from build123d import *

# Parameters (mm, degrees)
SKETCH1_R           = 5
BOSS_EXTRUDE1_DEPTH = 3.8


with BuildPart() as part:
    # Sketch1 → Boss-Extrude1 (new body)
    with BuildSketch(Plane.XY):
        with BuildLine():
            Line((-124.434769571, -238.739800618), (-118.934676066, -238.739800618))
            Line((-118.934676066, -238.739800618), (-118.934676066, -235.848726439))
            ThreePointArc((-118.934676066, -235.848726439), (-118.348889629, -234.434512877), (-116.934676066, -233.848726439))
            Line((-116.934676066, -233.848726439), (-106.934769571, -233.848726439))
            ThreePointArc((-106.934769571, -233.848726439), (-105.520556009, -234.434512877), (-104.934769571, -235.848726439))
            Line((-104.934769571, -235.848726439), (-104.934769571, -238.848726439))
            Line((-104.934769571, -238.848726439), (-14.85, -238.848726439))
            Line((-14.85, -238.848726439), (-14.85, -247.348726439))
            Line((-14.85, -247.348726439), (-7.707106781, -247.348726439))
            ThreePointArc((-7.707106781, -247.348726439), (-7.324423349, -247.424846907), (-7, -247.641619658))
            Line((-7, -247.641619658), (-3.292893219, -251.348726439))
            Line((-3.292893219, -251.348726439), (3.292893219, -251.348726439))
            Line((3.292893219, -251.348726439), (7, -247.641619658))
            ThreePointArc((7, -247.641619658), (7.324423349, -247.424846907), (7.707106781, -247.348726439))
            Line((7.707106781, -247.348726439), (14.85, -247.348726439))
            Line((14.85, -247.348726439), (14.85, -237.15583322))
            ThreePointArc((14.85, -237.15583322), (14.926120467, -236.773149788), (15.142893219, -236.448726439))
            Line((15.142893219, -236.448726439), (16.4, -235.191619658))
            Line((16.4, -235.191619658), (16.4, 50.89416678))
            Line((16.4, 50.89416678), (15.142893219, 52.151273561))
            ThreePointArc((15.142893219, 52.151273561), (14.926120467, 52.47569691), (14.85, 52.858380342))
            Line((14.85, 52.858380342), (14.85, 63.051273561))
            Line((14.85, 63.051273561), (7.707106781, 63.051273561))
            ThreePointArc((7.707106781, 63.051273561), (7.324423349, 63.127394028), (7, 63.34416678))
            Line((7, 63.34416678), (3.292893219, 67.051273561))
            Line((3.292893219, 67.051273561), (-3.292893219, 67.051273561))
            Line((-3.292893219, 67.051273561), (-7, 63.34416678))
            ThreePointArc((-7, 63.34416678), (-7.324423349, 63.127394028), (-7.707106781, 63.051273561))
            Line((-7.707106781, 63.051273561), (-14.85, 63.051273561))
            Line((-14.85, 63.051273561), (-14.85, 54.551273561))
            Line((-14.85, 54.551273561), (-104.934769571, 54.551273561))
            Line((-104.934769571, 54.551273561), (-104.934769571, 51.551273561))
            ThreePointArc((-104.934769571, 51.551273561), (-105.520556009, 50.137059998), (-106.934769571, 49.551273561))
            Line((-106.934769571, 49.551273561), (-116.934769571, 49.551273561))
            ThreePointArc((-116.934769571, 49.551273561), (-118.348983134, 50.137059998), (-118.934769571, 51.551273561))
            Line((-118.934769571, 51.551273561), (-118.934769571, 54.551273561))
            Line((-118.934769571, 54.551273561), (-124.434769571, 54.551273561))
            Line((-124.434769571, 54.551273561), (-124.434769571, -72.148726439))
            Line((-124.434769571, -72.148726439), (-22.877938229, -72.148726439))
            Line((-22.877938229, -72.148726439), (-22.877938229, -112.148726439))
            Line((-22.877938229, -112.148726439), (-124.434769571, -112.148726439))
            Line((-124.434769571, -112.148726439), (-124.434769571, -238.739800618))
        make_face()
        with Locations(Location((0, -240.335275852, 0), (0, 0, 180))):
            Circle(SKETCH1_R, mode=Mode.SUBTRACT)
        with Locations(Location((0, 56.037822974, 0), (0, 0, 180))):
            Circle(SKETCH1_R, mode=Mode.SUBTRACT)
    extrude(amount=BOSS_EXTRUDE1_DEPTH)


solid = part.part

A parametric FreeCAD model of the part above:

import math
import FreeCAD as App
import Part
import Sketcher
from FreeCAD import Vector

doc = App.newDocument("Part")
params = doc.addObject("Spreadsheet::Sheet", "Params")
for row, (alias, value) in enumerate([
    ("sketch1_diameter", "10 mm"),
    ("sketch1_radius", "2 mm"),
    ("sketch1_radius2", "1 mm"),
    ("sketch1_width", "10 mm"),
    ("sketch1_height", "3 mm"),
    ("pad1_length", "3.8 mm"),
], start=1):
    params.set(f"A{row}", alias)
    params.set(f"B{row}", "=" + value)
    params.setAlias(f"B{row}", alias)

body = doc.addObject("PartDesign::Body", "Body")

sketch1 = doc.addObject("Sketcher::SketchObject", "Sketch")
body.addObject(sketch1)
sketch1.AttachmentSupport = (doc.XY_Plane, [""])
sketch1.MapMode = "FlatFace"
sketch1.addGeometry(Part.LineSegment(Vector(-124.4, -238.7, 0), Vector(-118.9, -238.7, 0)), False)
sketch1.addGeometry(Part.LineSegment(Vector(-118.9, -238.7, 0), Vector(-118.9, -235.8, 0)), False)
sketch1.addGeometry(Part.ArcOfCircle(Part.Circle(Vector(-116.9, -235.8, 0), Vector(0, 0, 1), 2), math.radians(90), math.radians(180)), False)
sketch1.addGeometry(Part.LineSegment(Vector(-116.9, -233.8, 0), Vector(-106.9, -233.8, 0)), False)
sketch1.addGeometry(Part.ArcOfCircle(Part.Circle(Vector(-106.9, -235.8, 0), Vector(0, 0, 1), 2), math.radians(0), math.radians(90)), False)
sketch1.addGeometry(Part.LineSegment(Vector(-104.9, -235.8, 0), Vector(-104.9, -238.8, 0)), False)
sketch1.addGeometry(Part.LineSegment(Vector(-104.9, -238.8, 0), Vector(-14.8, -238.8, 0)), False)
sketch1.addGeometry(Part.LineSegment(Vector(-14.8, -238.8, 0), Vector(-14.8, -247.3, 0)), False)
sketch1.addGeometry(Part.LineSegment(Vector(-14.8, -247.3, 0), Vector(-7.7, -247.3, 0)), False)
sketch1.addGeometry(Part.ArcOfCircle(Part.Circle(Vector(-7.7, -248.3, 0), Vector(0, 0, 1), 1), math.radians(45), math.radians(90)), False)
sketch1.addGeometry(Part.LineSegment(Vector(-7, -247.6, 0), Vector(-3.3, -251.3, 0)), False)
sketch1.addGeometry(Part.LineSegment(Vector(-3.3, -251.3, 0), Vector(3.3, -251.3, 0)), False)
sketch1.addGeometry(Part.LineSegment(Vector(3.3, -251.3, 0), Vector(7, -247.6, 0)), False)
sketch1.addGeometry(Part.ArcOfCircle(Part.Circle(Vector(7.7, -248.3, 0), Vector(0, 0, 1), 1), math.radians(90), math.radians(135)), False)
sketch1.addGeometry(Part.LineSegment(Vector(7.7, -247.3, 0), Vector(14.8, -247.3, 0)), False)
sketch1.addGeometry(Part.LineSegment(Vector(14.8, -247.3, 0), Vector(14.8, -237.2, 0)), False)
sketch1.addGeometry(Part.ArcOfCircle(Part.Circle(Vector(15.8, -237.2, 0), Vector(0, 0, 1), 1), math.radians(135), math.radians(180)), False)
sketch1.addGeometry(Part.LineSegment(Vector(15.1, -236.4, 0), Vector(16.4, -235.2, 0)), False)
sketch1.addGeometry(Part.LineSegment(Vector(16.4, -235.2, 0), Vector(16.4, 50.9, 0)), False)
sketch1.addGeometry(Part.LineSegment(Vector(16.4, 50.9, 0), Vector(15.1, 52.2, 0)), False)
sketch1.addGeometry(Part.ArcOfCircle(Part.Circle(Vector(15.8, 52.9, 0), Vector(0, 0, 1), 1), math.radians(180), math.radians(225)), False)
sketch1.addGeometry(Part.LineSegment(Vector(14.8, 52.9, 0), Vector(14.8, 63.1, 0)), False)
sketch1.addGeometry(Part.LineSegment(Vector(14.8, 63.1, 0), Vector(7.7, 63.1, 0)), False)
sketch1.addGeometry(Part.ArcOfCircle(Part.Circle(Vector(7.7, 64.1, 0), Vector(0, 0, 1), 1), math.radians(-135), math.radians(-90)), False)
sketch1.addGeometry(Part.LineSegment(Vector(7, 63.3, 0), Vector(3.3, 67.1, 0)), False)
sketch1.addGeometry(Part.LineSegment(Vector(3.3, 67.1, 0), Vector(-3.3, 67.1, 0)), False)
sketch1.addGeometry(Part.LineSegment(Vector(-3.3, 67.1, 0), Vector(-7, 63.3, 0)), False)
sketch1.addGeometry(Part.ArcOfCircle(Part.Circle(Vector(-7.7, 64.1, 0), Vector(0, 0, 1), 1), math.radians(-90), math.radians(-45)), False)
sketch1.addGeometry(Part.LineSegment(Vector(-7.7, 63.1, 0), Vector(-14.8, 63.1, 0)), False)
sketch1.addGeometry(Part.LineSegment(Vector(-14.8, 63.1, 0), Vector(-14.8, 54.6, 0)), False)
sketch1.addGeometry(Part.LineSegment(Vector(-14.8, 54.6, 0), Vector(-104.9, 54.6, 0)), False)
sketch1.addGeometry(Part.LineSegment(Vector(-104.9, 54.6, 0), Vector(-104.9, 51.6, 0)), False)
sketch1.addGeometry(Part.ArcOfCircle(Part.Circle(Vector(-106.9, 51.6, 0), Vector(0, 0, 1), 2), math.radians(-90), math.radians(0)), False)
sketch1.addGeometry(Part.LineSegment(Vector(-106.9, 49.6, 0), Vector(-116.9, 49.6, 0)), False)
sketch1.addGeometry(Part.ArcOfCircle(Part.Circle(Vector(-116.9, 51.6, 0), Vector(0, 0, 1), 2), math.radians(180), math.radians(270)), False)
sketch1.addGeometry(Part.LineSegment(Vector(-118.9, 51.6, 0), Vector(-118.9, 54.6, 0)), False)
sketch1.addGeometry(Part.LineSegment(Vector(-118.9, 54.6, 0), Vector(-124.4, 54.6, 0)), False)
sketch1.addGeometry(Part.LineSegment(Vector(-124.4, 54.6, 0), Vector(-124.4, -72.1, 0)), False)
sketch1.addGeometry(Part.LineSegment(Vector(-124.4, -72.1, 0), Vector(-22.9, -72.1, 0)), False)
sketch1.addGeometry(Part.LineSegment(Vector(-22.9, -72.1, 0), Vector(-22.9, -112.1, 0)), False)
sketch1.addGeometry(Part.LineSegment(Vector(-22.9, -112.1, 0), Vector(-124.4, -112.1, 0)), False)
sketch1.addGeometry(Part.LineSegment(Vector(-124.4, -112.1, 0), Vector(-124.4, -238.7, 0)), False)
sketch1.addGeometry(Part.Circle(Vector(0, -240.3, 0), Vector(0, 0, 1), 5), False)
sketch1.addGeometry(Part.Circle(Vector(0, 56, 0), Vector(0, 0, 1), 5), False)
sketch1.addConstraint(Sketcher.Constraint("Coincident", 0, 2, 1, 1))
sketch1.addConstraint(Sketcher.Constraint("Tangent", 1, 2, 2, 2))
sketch1.addConstraint(Sketcher.Constraint("Tangent", 2, 1, 3, 1))
sketch1.addConstraint(Sketcher.Constraint("Tangent", 3, 2, 4, 2))
sketch1.addConstraint(Sketcher.Constraint("Tangent", 4, 1, 5, 1))
sketch1.addConstraint(Sketcher.Constraint("Coincident", 5, 2, 6, 1))
sketch1.addConstraint(Sketcher.Constraint("Coincident", 6, 2, 7, 1))
sketch1.addConstraint(Sketcher.Constraint("Coincident", 7, 2, 8, 1))
sketch1.addConstraint(Sketcher.Constraint("Tangent", 8, 2, 9, 2))
sketch1.addConstraint(Sketcher.Constraint("Tangent", 9, 1, 10, 1))
sketch1.addConstraint(Sketcher.Constraint("Coincident", 10, 2, 11, 1))
sketch1.addConstraint(Sketcher.Constraint("Coincident", 11, 2, 12, 1))
sketch1.addConstraint(Sketcher.Constraint("Tangent", 12, 2, 13, 2))
sketch1.addConstraint(Sketcher.Constraint("Tangent", 13, 1, 14, 1))
sketch1.addConstraint(Sketcher.Constraint("Coincident", 14, 2, 15, 1))
sketch1.addConstraint(Sketcher.Constraint("Tangent", 15, 2, 16, 2))
sketch1.addConstraint(Sketcher.Constraint("Tangent", 16, 1, 17, 1))
sketch1.addConstraint(Sketcher.Constraint("Coincident", 17, 2, 18, 1))
sketch1.addConstraint(Sketcher.Constraint("Coincident", 18, 2, 19, 1))
sketch1.addConstraint(Sketcher.Constraint("Tangent", 19, 2, 20, 2))
sketch1.addConstraint(Sketcher.Constraint("Tangent", 20, 1, 21, 1))
sketch1.addConstraint(Sketcher.Constraint("Coincident", 21, 2, 22, 1))
sketch1.addConstraint(Sketcher.Constraint("Tangent", 22, 2, 23, 2))
sketch1.addConstraint(Sketcher.Constraint("Tangent", 23, 1, 24, 1))
sketch1.addConstraint(Sketcher.Constraint("Coincident", 24, 2, 25, 1))
sketch1.addConstraint(Sketcher.Constraint("Coincident", 25, 2, 26, 1))
sketch1.addConstraint(Sketcher.Constraint("Tangent", 26, 2, 27, 2))
sketch1.addConstraint(Sketcher.Constraint("Tangent", 27, 1, 28, 1))
sketch1.addConstraint(Sketcher.Constraint("Coincident", 28, 2, 29, 1))
sketch1.addConstraint(Sketcher.Constraint("Coincident", 29, 2, 30, 1))
sketch1.addConstraint(Sketcher.Constraint("Coincident", 30, 2, 31, 1))
sketch1.addConstraint(Sketcher.Constraint("Tangent", 31, 2, 32, 2))
sketch1.addConstraint(Sketcher.Constraint("Tangent", 32, 1, 33, 1))
sketch1.addConstraint(Sketcher.Constraint("Tangent", 33, 2, 34, 2))
sketch1.addConstraint(Sketcher.Constraint("Tangent", 34, 1, 35, 1))
sketch1.addConstraint(Sketcher.Constraint("Coincident", 35, 2, 36, 1))
sketch1.addConstraint(Sketcher.Constraint("Coincident", 36, 2, 37, 1))
sketch1.addConstraint(Sketcher.Constraint("Coincident", 37, 2, 38, 1))
sketch1.addConstraint(Sketcher.Constraint("Coincident", 38, 2, 39, 1))
sketch1.addConstraint(Sketcher.Constraint("Coincident", 39, 2, 40, 1))
sketch1.addConstraint(Sketcher.Constraint("Coincident", 40, 2, 41, 1))
sketch1.addConstraint(Sketcher.Constraint("Coincident", 41, 2, 0, 1))
sketch1.addConstraint(Sketcher.Constraint("Horizontal", 0))
sketch1.addConstraint(Sketcher.Constraint("Vertical", 1))
sketch1.addConstraint(Sketcher.Constraint("Horizontal", 3))
sketch1.addConstraint(Sketcher.Constraint("Vertical", 5))
sketch1.addConstraint(Sketcher.Constraint("Horizontal", 6))
sketch1.addConstraint(Sketcher.Constraint("Vertical", 7))
sketch1.addConstraint(Sketcher.Constraint("Horizontal", 8))
sketch1.addConstraint(Sketcher.Constraint("Horizontal", 11))
sketch1.addConstraint(Sketcher.Constraint("Horizontal", 14))
sketch1.addConstraint(Sketcher.Constraint("Vertical", 15))
sketch1.addConstraint(Sketcher.Constraint("Vertical", 18))
sketch1.addConstraint(Sketcher.Constraint("Vertical", 21))
sketch1.addConstraint(Sketcher.Constraint("Horizontal", 22))
sketch1.addConstraint(Sketcher.Constraint("Horizontal", 25))
sketch1.addConstraint(Sketcher.Constraint("Horizontal", 28))
sketch1.addConstraint(Sketcher.Constraint("Vertical", 29))
sketch1.addConstraint(Sketcher.Constraint("Horizontal", 30))
sketch1.addConstraint(Sketcher.Constraint("Vertical", 31))
sketch1.addConstraint(Sketcher.Constraint("Horizontal", 33))
sketch1.addConstraint(Sketcher.Constraint("Vertical", 35))
sketch1.addConstraint(Sketcher.Constraint("Horizontal", 36))
sketch1.addConstraint(Sketcher.Constraint("Vertical", 37))
sketch1.addConstraint(Sketcher.Constraint("Horizontal", 38))
sketch1.addConstraint(Sketcher.Constraint("Vertical", 39))
sketch1.addConstraint(Sketcher.Constraint("Horizontal", 40))
sketch1.addConstraint(Sketcher.Constraint("Vertical", 41))
sketch1.addConstraint(Sketcher.Constraint("Equal", 2, 4))
sketch1.addConstraint(Sketcher.Constraint("Equal", 9, 13))
sketch1.addConstraint(Sketcher.Constraint("Equal", 13, 16))
sketch1.addConstraint(Sketcher.Constraint("Equal", 16, 20))
sketch1.addConstraint(Sketcher.Constraint("Equal", 20, 23))
sketch1.addConstraint(Sketcher.Constraint("Equal", 23, 27))
sketch1.addConstraint(Sketcher.Constraint("Equal", 4, 32))
sketch1.addConstraint(Sketcher.Constraint("Equal", 32, 34))
sketch1.addConstraint(Sketcher.Constraint("Equal", 42, 43))
sketch1.addConstraint(Sketcher.Constraint("Symmetric", 9, 3, 13, 3, -2))
sketch1.addConstraint(Sketcher.Constraint("Symmetric", 23, 3, 27, 3, -2))
sketch1.addConstraint(Sketcher.Constraint("PointOnObject", 42, 3, -2))
sketch1.addConstraint(Sketcher.Constraint("PointOnObject", 43, 3, -2))
sketch1.addConstraint(Sketcher.Constraint("Perpendicular", 10, 12))
sketch1.addConstraint(Sketcher.Constraint("Parallel", 12, 17))
sketch1.addConstraint(Sketcher.Constraint("Perpendicular", 17, 19))
sketch1.addConstraint(Sketcher.Constraint("Parallel", 19, 24))
sketch1.addConstraint(Sketcher.Constraint("Perpendicular", 24, 26))
sketch1.addConstraint(Sketcher.Constraint("Horizontal", 9, 1, 12, 2))
sketch1.addConstraint(Sketcher.Constraint("Horizontal", 30, 2, 35, 2))
sketch1.addConstraint(Sketcher.Constraint("Vertical", 16, 3, 20, 3))
sketch1.addConstraint(Sketcher.Constraint("Vertical", 13, 3, 23, 3))
sketch1.addConstraint(Sketcher.Constraint("Vertical", 4, 3, 32, 3))
sketch1.addConstraint(Sketcher.Constraint("Vertical", 11, 2, 24, 2))
sketch1.addConstraint(Sketcher.Constraint("Vertical", 7, 2, 28, 2))
sketch1.addConstraint(Sketcher.Constraint("Vertical", 37, 2, 40, 2))
sketch1.addConstraint(Sketcher.Constraint("Equal", 8, 14))
sketch1.addConstraint(Sketcher.Constraint("Equal", 15, 21))
sketch1.addConstraint(Sketcher.Constraint("Equal", 7, 29))
sketch1.addConstraint(Sketcher.Constraint("Equal", 5, 31))
sketch1.addConstraint(Sketcher.Constraint("Diameter", 42, 10.0))
sketch1.addConstraint(Sketcher.Constraint("Radius", 2, 2.0))
sketch1.addConstraint(Sketcher.Constraint("Radius", 9, 1.0))
sketch1.addConstraint(Sketcher.Constraint("DistanceX", 33, 2, 33, 1, 10.0))
sketch1.addConstraint(Sketcher.Constraint("DistanceY", 5, 2, 5, 1, 3.0))
sketch1.addConstraint(Sketcher.Constraint("DistanceY", 39, 2, 39, 1, 40.0))
sketch1.addConstraint(Sketcher.Constraint("DistanceX", 36, 2, 36, 1, 5.5))
sketch1.addConstraint(Sketcher.Constraint("DistanceY", 7, 2, 7, 1, 8.5))
sketch1.addConstraint(Sketcher.Constraint("DistanceY", 37, 2, 37, 1, 126.7))
sketch1.addConstraint(Sketcher.Constraint("DistanceX", 9, 1, -1, 1, 7.0))
sketch1.addConstraint(Sketcher.Constraint("DistanceY", 10, 2, 9, 3, 3.0))
sketch1.addConstraint(Sketcher.Constraint("DistanceX", -1, 1, 17, 2, 16.4))
sketch1.addConstraint(Sketcher.Constraint("DistanceY", 13, 3, 23, 3, 312.4))
sketch1.addConstraint(Sketcher.Constraint("DistanceX", 6, 2, 16, 3, 30.7))
sketch1.addConstraint(Sketcher.Constraint("DistanceY", 14, 2, 16, 1, 10.9))
sketch1.addConstraint(Sketcher.Constraint("DistanceX", 6, 1, 6, 2, 90.08477))
sketch1.addConstraint(Sketcher.Constraint("DistanceX", 38, 1, 38, 2, 101.556831))
sketch1.addConstraint(Sketcher.Constraint("DistanceY", 0, 2, -1, 1, 238.739801))
sketch1.addConstraint(Sketcher.Constraint("DistanceX", 0, 1, 0, 2, 5.500094))
sketch1.addConstraint(Sketcher.Constraint("DistanceY", 1, 1, 1, 2, 2.891074))
sketch1.addConstraint(Sketcher.Constraint("DistanceY", 9, 3, 42, 3, 8.013451))
sketch1.addConstraint(Sketcher.Constraint("DistanceY", 43, 3, 23, 3, 8.013451))
sketch1.setExpression("Constraints[98]", "Params.sketch1_diameter")
sketch1.setExpression("Constraints[99]", "Params.sketch1_radius")
sketch1.setExpression("Constraints[100]", "Params.sketch1_radius2")
sketch1.setExpression("Constraints[101]", "Params.sketch1_width")
sketch1.setExpression("Constraints[102]", "Params.sketch1_height")
pad1 = doc.addObject("PartDesign::Pad", "Pad")
body.addObject(pad1)
pad1.Profile = sketch1
pad1.setExpression("Length", "Params.pad1_length")

doc.recompute()
